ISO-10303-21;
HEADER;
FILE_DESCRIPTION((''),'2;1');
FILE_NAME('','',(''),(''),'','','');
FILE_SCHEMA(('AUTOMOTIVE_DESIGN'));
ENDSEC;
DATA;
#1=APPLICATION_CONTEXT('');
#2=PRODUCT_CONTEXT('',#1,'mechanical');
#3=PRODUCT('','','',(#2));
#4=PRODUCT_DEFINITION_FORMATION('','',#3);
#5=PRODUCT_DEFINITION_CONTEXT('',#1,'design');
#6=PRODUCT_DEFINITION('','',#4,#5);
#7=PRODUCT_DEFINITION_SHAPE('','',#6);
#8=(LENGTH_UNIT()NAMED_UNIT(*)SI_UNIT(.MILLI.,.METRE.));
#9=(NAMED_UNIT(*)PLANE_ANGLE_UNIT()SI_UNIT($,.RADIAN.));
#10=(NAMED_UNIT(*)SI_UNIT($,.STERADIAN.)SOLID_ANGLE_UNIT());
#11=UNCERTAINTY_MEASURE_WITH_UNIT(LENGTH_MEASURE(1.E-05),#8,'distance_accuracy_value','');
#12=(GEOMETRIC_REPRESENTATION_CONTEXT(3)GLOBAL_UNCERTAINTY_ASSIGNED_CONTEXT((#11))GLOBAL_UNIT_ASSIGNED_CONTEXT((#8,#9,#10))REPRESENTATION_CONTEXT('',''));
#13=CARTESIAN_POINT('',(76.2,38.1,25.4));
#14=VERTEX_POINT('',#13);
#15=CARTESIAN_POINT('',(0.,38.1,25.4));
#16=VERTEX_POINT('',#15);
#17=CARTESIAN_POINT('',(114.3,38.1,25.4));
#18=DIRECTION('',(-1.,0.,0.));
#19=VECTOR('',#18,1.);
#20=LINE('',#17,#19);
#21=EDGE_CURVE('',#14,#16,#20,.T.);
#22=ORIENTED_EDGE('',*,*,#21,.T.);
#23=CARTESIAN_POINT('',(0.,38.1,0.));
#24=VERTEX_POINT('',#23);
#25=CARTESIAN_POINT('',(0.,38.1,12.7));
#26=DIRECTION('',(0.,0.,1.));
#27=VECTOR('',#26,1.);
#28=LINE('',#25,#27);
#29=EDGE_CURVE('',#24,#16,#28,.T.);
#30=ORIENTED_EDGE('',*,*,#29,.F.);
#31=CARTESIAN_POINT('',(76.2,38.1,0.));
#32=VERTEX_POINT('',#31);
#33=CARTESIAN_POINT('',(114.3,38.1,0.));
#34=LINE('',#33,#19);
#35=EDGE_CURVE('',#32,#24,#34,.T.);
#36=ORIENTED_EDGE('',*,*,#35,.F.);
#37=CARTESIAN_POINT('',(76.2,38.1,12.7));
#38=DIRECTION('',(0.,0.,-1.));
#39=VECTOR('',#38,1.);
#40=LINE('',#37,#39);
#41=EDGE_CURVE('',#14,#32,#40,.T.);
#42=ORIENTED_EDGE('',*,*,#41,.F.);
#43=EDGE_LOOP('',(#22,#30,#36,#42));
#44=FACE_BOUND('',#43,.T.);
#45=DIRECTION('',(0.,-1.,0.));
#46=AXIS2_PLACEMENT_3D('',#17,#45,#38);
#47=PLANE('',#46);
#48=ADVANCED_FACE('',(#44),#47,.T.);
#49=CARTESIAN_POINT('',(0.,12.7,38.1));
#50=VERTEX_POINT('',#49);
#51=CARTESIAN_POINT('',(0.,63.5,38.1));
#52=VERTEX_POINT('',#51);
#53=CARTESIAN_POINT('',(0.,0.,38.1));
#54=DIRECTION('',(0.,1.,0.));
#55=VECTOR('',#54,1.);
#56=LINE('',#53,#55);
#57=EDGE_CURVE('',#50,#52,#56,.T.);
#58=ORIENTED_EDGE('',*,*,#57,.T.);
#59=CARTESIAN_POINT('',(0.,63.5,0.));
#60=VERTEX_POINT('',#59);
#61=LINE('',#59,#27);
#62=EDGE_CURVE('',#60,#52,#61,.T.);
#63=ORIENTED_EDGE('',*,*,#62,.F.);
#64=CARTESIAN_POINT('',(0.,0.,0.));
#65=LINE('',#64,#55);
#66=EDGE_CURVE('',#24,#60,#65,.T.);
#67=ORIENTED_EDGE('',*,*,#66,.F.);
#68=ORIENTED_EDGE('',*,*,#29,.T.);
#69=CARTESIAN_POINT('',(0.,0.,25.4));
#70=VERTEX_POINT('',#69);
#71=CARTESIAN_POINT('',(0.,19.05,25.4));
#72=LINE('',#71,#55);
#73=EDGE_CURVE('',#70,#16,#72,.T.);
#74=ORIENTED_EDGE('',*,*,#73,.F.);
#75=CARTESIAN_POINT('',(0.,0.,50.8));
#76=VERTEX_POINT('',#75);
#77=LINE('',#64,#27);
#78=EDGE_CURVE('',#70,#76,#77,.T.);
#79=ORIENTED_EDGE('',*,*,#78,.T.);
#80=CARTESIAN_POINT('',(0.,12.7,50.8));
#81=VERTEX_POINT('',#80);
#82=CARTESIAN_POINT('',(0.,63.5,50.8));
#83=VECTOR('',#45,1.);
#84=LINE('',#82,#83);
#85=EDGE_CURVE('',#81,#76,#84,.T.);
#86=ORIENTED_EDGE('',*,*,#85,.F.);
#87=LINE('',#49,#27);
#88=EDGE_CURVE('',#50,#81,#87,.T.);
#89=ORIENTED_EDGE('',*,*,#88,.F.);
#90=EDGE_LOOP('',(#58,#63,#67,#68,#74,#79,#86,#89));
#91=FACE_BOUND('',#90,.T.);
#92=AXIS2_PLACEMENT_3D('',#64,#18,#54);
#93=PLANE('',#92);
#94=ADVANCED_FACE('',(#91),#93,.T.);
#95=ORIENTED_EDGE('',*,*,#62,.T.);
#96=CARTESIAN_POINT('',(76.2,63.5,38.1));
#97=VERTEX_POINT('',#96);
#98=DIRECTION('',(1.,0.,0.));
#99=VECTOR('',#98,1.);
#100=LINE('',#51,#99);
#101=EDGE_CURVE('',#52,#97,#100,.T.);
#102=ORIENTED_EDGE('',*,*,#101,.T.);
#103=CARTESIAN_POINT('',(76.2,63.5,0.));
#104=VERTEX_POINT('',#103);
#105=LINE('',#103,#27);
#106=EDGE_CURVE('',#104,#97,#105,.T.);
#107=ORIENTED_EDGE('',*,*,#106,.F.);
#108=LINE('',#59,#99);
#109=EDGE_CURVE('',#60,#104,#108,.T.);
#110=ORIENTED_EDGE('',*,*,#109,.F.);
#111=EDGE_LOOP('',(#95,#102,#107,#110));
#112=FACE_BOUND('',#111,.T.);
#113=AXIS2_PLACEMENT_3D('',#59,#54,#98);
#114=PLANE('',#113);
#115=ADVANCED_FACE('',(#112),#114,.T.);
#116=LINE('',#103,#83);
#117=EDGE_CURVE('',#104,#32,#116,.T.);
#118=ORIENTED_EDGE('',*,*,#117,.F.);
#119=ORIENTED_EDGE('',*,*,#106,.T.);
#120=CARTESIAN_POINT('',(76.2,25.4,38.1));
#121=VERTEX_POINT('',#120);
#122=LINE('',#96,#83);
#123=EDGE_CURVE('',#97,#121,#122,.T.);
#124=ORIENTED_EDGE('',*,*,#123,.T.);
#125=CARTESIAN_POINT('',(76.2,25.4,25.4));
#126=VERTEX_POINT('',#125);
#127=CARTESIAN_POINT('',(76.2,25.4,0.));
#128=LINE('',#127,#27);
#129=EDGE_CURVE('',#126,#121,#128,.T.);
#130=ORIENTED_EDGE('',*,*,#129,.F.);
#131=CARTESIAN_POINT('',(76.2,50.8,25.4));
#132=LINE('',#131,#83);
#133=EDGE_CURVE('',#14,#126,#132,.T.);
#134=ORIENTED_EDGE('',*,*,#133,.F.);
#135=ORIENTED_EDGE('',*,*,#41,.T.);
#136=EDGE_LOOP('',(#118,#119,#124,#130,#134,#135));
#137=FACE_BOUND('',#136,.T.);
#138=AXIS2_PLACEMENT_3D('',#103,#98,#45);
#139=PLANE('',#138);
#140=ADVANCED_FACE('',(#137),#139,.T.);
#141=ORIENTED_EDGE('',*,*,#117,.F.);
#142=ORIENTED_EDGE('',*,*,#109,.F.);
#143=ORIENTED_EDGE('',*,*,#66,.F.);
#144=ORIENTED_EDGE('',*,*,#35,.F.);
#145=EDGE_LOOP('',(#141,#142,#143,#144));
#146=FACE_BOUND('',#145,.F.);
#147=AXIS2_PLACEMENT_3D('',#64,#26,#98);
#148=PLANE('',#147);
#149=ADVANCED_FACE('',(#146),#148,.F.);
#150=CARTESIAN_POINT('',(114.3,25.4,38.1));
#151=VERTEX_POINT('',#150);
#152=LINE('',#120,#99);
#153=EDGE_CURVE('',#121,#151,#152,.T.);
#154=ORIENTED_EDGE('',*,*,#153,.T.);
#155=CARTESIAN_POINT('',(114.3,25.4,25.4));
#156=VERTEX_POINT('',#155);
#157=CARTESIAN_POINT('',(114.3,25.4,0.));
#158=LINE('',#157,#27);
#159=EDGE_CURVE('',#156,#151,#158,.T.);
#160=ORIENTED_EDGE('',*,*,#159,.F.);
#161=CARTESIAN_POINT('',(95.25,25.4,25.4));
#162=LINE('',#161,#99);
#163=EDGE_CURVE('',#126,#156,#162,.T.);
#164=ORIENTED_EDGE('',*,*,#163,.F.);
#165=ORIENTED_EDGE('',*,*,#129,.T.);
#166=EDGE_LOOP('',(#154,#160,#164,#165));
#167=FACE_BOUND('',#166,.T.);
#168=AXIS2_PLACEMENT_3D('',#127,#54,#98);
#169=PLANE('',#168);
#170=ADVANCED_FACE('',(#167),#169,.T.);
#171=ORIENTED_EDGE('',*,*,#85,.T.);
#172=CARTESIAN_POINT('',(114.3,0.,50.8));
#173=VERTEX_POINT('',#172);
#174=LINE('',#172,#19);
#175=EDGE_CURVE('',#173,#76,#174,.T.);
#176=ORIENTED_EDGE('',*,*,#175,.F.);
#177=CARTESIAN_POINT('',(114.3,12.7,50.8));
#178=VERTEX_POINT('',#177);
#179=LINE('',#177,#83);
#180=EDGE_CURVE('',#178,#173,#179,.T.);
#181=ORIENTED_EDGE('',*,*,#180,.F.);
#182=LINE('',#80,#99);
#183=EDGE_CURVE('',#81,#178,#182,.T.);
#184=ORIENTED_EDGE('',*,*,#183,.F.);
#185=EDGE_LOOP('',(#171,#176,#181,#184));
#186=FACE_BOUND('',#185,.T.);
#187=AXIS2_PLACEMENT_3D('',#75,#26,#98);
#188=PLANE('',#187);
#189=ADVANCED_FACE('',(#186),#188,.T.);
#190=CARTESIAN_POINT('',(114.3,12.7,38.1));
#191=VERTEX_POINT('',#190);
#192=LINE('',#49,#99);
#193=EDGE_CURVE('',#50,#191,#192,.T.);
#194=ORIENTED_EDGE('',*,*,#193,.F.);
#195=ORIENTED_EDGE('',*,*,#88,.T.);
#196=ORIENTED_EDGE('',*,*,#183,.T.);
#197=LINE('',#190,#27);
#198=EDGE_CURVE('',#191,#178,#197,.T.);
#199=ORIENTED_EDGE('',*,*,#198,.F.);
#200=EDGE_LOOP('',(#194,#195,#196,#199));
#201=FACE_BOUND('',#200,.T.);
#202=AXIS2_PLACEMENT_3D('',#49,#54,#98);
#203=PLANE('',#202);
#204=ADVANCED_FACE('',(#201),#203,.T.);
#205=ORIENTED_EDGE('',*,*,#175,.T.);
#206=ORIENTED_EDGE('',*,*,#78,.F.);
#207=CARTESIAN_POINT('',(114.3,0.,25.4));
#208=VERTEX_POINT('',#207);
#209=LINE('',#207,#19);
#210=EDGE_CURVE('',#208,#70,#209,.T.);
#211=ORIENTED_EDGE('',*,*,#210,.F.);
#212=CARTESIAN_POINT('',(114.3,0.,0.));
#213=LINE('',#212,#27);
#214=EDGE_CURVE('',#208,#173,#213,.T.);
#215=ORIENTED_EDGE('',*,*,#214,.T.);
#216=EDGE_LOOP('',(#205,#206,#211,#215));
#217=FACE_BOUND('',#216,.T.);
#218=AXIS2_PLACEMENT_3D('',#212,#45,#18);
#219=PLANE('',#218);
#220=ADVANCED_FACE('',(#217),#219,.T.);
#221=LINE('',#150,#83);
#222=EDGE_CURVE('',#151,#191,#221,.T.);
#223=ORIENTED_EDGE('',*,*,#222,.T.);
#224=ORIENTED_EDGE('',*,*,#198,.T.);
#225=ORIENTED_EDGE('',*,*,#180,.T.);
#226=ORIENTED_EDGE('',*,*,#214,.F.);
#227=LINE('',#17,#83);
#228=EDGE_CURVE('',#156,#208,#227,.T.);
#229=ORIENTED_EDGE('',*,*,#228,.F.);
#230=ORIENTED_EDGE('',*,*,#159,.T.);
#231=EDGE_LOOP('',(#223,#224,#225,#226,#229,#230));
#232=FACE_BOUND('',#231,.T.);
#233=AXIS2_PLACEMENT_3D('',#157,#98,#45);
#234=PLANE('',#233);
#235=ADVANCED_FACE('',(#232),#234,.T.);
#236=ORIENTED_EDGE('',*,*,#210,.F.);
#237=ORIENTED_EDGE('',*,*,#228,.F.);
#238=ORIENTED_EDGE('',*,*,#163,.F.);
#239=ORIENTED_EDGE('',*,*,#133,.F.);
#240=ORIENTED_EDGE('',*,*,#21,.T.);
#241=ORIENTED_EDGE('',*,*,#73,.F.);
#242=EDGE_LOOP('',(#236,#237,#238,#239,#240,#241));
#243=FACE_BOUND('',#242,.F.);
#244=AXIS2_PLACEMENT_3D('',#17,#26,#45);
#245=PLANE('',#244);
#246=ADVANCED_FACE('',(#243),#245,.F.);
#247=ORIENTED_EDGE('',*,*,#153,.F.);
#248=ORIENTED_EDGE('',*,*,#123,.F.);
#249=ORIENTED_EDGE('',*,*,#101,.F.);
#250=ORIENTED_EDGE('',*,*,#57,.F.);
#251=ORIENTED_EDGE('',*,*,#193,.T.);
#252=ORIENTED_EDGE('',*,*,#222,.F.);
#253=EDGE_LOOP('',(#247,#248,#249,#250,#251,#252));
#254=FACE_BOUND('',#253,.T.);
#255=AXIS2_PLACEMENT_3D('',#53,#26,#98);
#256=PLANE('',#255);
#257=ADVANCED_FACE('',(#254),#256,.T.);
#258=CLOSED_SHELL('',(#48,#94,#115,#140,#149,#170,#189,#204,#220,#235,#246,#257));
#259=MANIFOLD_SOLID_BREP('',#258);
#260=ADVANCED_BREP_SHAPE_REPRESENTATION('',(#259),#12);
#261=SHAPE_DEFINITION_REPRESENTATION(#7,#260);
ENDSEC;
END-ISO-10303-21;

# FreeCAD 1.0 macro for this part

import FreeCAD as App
import Part
import Sketcher
Q = App.Units.Quantity

doc = App.newDocument("Part")
body = doc.addObject("PartDesign::Body", "Body")

sketch1 = body.newObject("Sketcher::SketchObject", "Sketch")
sketch1.AttachmentSupport = (doc.getObject("XY_Plane"), [""])
sketch1.MapMode = "FlatFace"
sketch1.addGeometry([
    Part.LineSegment(App.Vector(0, 63.5, 0), App.Vector(0, 0, 0)),
    Part.LineSegment(App.Vector(0, 0, 0), App.Vector(114.3, 0, 0)),
    Part.LineSegment(App.Vector(114.3, 0, 0), App.Vector(114.3, 25.4, 0)),
    Part.LineSegment(App.Vector(114.3, 25.4, 0), App.Vector(76.2, 25.4, 0)),
    Part.LineSegment(App.Vector(76.2, 25.4, 0), App.Vector(76.2, 63.5, 0)),
    Part.LineSegment(App.Vector(76.2, 63.5, 0), App.Vector(0, 63.5, 0)),
], False)
sketch1.addConstraint([
    Sketcher.Constraint("Coincident", 0, 2, 1, 1),
    Sketcher.Constraint("Coincident", 1, 2, 2, 1),
    Sketcher.Constraint("Coincident", 2, 2, 3, 1),
    Sketcher.Constraint("Coincident", 3, 2, 4, 1),
    Sketcher.Constraint("Coincident", 4, 2, 5, 1),
    Sketcher.Constraint("Coincident", 5, 2, 0, 1),
    Sketcher.Constraint("Vertical", 0),
    Sketcher.Constraint("Horizontal", 1),
    Sketcher.Constraint("Vertical", 2),
    Sketcher.Constraint("Horizontal", 3),
    Sketcher.Constraint("Vertical", 4),
    Sketcher.Constraint("Horizontal", 5),
    Sketcher.Constraint("Coincident", 0, 2, -1, 1),
    Sketcher.Constraint("Equal", 3, 4),
    Sketcher.Constraint("DistanceX", 5, 2, 5, 1, Q("3 in")),
    Sketcher.Constraint("DistanceY", 2, 1, 2, 2, Q("1 in")),
    Sketcher.Constraint("DistanceX", 1, 1, 1, 2, Q("4.5 in")),
])
pad1 = body.newObject("PartDesign::Pad", "Pad")
pad1.Profile = sketch1
pad1.Length = Q("1.5 in")

sketch2 = body.newObject("Sketcher::SketchObject", "Sketch001")
sketch2.AttachmentSupport = (doc.getObject("XY_Plane"), [""])
sketch2.MapMode = "FlatFace"
sketch2.AttachmentOffset = App.Placement(App.Vector(0, 0, 1.5 * 25.4), App.Rotation())
sketch2.addGeometry([
    Part.LineSegment(App.Vector(114.3, 12.7, 0), App.Vector(0, 12.7, 0)),
    Part.LineSegment(App.Vector(0, 12.7, 0), App.Vector(0, 0, 0)),
    Part.LineSegment(App.Vector(0, 0, 0), App.Vector(114.3, 0, 0)),
    Part.LineSegment(App.Vector(114.3, 0, 0), App.Vector(114.3, 12.7, 0)),
], False)
sketch2.addConstraint([
    Sketcher.Constraint("Coincident", 0, 2, 1, 1),
    Sketcher.Constraint("Coincident", 1, 2, 2, 1),
    Sketcher.Constraint("Coincident", 2, 2, 3, 1),
    Sketcher.Constraint("Coincident", 3, 2, 0, 1),
    Sketcher.Constraint("Horizontal", 0),
    Sketcher.Constraint("Vertical", 1),
    Sketcher.Constraint("Horizontal", 2),
    Sketcher.Constraint("Vertical", 3),
    Sketcher.Constraint("Coincident", 1, 2, -1, 1),
    Sketcher.Constraint("DistanceX", 0, 2, 0, 1, Q("4.5 in")),
    Sketcher.Constraint("DistanceY", 1, 2, 1, 1, Q("0.5 in")),
])
pad2 = body.newObject("PartDesign::Pad", "Pad001")
pad2.Profile = sketch2
pad2.Length = Q("0.5 in")

sketch3 = body.newObject("Sketcher::SketchObject", "Sketch002")
sketch3.AttachmentSupport = (doc.getObject("YZ_Plane"), [""])
sketch3.MapMode = "FlatFace"
sketch3.AttachmentOffset = App.Placement(App.Vector(0, 0, 4.5 * 25.4), App.Rotation())
sketch3.addGeometry([
    Part.LineSegment(App.Vector(38.1, 0, 0), App.Vector(38.1, 25.4, 0)),
    Part.LineSegment(App.Vector(38.1, 25.4, 0), App.Vector(0, 25.4, 0)),
    Part.LineSegment(App.Vector(0, 25.4, 0), App.Vector(0, 0, 0)),
    Part.LineSegment(App.Vector(0, 0, 0), App.Vector(38.1, 0, 0)),
], False)
sketch3.addConstraint([
    Sketcher.Constraint("Coincident", 0, 2, 1, 1),
    Sketcher.Constraint("Coincident", 1, 2, 2, 1),
    Sketcher.Constraint("Coincident", 2, 2, 3, 1),
    Sketcher.Constraint("Coincident", 3, 2, 0, 1),
    Sketcher.Constraint("Vertical", 0),
    Sketcher.Constraint("Horizontal", 1),
    Sketcher.Constraint("Vertical", 2),
    Sketcher.Constraint("Horizontal", 3),
    Sketcher.Constraint("Coincident", 2, 2, -1, 1),
    Sketcher.Constraint("DistanceY", 0, 1, 0, 2, Q("1 in")),
    Sketcher.Constraint("DistanceX", 1, 2, 1, 1, Q("1.5 in")),
])
pocket1 = body.newObject("PartDesign::Pocket", "Pocket")
pocket1.Profile = sketch3
pocket1.Length = Q("5.9375 in")

doc.recompute()
